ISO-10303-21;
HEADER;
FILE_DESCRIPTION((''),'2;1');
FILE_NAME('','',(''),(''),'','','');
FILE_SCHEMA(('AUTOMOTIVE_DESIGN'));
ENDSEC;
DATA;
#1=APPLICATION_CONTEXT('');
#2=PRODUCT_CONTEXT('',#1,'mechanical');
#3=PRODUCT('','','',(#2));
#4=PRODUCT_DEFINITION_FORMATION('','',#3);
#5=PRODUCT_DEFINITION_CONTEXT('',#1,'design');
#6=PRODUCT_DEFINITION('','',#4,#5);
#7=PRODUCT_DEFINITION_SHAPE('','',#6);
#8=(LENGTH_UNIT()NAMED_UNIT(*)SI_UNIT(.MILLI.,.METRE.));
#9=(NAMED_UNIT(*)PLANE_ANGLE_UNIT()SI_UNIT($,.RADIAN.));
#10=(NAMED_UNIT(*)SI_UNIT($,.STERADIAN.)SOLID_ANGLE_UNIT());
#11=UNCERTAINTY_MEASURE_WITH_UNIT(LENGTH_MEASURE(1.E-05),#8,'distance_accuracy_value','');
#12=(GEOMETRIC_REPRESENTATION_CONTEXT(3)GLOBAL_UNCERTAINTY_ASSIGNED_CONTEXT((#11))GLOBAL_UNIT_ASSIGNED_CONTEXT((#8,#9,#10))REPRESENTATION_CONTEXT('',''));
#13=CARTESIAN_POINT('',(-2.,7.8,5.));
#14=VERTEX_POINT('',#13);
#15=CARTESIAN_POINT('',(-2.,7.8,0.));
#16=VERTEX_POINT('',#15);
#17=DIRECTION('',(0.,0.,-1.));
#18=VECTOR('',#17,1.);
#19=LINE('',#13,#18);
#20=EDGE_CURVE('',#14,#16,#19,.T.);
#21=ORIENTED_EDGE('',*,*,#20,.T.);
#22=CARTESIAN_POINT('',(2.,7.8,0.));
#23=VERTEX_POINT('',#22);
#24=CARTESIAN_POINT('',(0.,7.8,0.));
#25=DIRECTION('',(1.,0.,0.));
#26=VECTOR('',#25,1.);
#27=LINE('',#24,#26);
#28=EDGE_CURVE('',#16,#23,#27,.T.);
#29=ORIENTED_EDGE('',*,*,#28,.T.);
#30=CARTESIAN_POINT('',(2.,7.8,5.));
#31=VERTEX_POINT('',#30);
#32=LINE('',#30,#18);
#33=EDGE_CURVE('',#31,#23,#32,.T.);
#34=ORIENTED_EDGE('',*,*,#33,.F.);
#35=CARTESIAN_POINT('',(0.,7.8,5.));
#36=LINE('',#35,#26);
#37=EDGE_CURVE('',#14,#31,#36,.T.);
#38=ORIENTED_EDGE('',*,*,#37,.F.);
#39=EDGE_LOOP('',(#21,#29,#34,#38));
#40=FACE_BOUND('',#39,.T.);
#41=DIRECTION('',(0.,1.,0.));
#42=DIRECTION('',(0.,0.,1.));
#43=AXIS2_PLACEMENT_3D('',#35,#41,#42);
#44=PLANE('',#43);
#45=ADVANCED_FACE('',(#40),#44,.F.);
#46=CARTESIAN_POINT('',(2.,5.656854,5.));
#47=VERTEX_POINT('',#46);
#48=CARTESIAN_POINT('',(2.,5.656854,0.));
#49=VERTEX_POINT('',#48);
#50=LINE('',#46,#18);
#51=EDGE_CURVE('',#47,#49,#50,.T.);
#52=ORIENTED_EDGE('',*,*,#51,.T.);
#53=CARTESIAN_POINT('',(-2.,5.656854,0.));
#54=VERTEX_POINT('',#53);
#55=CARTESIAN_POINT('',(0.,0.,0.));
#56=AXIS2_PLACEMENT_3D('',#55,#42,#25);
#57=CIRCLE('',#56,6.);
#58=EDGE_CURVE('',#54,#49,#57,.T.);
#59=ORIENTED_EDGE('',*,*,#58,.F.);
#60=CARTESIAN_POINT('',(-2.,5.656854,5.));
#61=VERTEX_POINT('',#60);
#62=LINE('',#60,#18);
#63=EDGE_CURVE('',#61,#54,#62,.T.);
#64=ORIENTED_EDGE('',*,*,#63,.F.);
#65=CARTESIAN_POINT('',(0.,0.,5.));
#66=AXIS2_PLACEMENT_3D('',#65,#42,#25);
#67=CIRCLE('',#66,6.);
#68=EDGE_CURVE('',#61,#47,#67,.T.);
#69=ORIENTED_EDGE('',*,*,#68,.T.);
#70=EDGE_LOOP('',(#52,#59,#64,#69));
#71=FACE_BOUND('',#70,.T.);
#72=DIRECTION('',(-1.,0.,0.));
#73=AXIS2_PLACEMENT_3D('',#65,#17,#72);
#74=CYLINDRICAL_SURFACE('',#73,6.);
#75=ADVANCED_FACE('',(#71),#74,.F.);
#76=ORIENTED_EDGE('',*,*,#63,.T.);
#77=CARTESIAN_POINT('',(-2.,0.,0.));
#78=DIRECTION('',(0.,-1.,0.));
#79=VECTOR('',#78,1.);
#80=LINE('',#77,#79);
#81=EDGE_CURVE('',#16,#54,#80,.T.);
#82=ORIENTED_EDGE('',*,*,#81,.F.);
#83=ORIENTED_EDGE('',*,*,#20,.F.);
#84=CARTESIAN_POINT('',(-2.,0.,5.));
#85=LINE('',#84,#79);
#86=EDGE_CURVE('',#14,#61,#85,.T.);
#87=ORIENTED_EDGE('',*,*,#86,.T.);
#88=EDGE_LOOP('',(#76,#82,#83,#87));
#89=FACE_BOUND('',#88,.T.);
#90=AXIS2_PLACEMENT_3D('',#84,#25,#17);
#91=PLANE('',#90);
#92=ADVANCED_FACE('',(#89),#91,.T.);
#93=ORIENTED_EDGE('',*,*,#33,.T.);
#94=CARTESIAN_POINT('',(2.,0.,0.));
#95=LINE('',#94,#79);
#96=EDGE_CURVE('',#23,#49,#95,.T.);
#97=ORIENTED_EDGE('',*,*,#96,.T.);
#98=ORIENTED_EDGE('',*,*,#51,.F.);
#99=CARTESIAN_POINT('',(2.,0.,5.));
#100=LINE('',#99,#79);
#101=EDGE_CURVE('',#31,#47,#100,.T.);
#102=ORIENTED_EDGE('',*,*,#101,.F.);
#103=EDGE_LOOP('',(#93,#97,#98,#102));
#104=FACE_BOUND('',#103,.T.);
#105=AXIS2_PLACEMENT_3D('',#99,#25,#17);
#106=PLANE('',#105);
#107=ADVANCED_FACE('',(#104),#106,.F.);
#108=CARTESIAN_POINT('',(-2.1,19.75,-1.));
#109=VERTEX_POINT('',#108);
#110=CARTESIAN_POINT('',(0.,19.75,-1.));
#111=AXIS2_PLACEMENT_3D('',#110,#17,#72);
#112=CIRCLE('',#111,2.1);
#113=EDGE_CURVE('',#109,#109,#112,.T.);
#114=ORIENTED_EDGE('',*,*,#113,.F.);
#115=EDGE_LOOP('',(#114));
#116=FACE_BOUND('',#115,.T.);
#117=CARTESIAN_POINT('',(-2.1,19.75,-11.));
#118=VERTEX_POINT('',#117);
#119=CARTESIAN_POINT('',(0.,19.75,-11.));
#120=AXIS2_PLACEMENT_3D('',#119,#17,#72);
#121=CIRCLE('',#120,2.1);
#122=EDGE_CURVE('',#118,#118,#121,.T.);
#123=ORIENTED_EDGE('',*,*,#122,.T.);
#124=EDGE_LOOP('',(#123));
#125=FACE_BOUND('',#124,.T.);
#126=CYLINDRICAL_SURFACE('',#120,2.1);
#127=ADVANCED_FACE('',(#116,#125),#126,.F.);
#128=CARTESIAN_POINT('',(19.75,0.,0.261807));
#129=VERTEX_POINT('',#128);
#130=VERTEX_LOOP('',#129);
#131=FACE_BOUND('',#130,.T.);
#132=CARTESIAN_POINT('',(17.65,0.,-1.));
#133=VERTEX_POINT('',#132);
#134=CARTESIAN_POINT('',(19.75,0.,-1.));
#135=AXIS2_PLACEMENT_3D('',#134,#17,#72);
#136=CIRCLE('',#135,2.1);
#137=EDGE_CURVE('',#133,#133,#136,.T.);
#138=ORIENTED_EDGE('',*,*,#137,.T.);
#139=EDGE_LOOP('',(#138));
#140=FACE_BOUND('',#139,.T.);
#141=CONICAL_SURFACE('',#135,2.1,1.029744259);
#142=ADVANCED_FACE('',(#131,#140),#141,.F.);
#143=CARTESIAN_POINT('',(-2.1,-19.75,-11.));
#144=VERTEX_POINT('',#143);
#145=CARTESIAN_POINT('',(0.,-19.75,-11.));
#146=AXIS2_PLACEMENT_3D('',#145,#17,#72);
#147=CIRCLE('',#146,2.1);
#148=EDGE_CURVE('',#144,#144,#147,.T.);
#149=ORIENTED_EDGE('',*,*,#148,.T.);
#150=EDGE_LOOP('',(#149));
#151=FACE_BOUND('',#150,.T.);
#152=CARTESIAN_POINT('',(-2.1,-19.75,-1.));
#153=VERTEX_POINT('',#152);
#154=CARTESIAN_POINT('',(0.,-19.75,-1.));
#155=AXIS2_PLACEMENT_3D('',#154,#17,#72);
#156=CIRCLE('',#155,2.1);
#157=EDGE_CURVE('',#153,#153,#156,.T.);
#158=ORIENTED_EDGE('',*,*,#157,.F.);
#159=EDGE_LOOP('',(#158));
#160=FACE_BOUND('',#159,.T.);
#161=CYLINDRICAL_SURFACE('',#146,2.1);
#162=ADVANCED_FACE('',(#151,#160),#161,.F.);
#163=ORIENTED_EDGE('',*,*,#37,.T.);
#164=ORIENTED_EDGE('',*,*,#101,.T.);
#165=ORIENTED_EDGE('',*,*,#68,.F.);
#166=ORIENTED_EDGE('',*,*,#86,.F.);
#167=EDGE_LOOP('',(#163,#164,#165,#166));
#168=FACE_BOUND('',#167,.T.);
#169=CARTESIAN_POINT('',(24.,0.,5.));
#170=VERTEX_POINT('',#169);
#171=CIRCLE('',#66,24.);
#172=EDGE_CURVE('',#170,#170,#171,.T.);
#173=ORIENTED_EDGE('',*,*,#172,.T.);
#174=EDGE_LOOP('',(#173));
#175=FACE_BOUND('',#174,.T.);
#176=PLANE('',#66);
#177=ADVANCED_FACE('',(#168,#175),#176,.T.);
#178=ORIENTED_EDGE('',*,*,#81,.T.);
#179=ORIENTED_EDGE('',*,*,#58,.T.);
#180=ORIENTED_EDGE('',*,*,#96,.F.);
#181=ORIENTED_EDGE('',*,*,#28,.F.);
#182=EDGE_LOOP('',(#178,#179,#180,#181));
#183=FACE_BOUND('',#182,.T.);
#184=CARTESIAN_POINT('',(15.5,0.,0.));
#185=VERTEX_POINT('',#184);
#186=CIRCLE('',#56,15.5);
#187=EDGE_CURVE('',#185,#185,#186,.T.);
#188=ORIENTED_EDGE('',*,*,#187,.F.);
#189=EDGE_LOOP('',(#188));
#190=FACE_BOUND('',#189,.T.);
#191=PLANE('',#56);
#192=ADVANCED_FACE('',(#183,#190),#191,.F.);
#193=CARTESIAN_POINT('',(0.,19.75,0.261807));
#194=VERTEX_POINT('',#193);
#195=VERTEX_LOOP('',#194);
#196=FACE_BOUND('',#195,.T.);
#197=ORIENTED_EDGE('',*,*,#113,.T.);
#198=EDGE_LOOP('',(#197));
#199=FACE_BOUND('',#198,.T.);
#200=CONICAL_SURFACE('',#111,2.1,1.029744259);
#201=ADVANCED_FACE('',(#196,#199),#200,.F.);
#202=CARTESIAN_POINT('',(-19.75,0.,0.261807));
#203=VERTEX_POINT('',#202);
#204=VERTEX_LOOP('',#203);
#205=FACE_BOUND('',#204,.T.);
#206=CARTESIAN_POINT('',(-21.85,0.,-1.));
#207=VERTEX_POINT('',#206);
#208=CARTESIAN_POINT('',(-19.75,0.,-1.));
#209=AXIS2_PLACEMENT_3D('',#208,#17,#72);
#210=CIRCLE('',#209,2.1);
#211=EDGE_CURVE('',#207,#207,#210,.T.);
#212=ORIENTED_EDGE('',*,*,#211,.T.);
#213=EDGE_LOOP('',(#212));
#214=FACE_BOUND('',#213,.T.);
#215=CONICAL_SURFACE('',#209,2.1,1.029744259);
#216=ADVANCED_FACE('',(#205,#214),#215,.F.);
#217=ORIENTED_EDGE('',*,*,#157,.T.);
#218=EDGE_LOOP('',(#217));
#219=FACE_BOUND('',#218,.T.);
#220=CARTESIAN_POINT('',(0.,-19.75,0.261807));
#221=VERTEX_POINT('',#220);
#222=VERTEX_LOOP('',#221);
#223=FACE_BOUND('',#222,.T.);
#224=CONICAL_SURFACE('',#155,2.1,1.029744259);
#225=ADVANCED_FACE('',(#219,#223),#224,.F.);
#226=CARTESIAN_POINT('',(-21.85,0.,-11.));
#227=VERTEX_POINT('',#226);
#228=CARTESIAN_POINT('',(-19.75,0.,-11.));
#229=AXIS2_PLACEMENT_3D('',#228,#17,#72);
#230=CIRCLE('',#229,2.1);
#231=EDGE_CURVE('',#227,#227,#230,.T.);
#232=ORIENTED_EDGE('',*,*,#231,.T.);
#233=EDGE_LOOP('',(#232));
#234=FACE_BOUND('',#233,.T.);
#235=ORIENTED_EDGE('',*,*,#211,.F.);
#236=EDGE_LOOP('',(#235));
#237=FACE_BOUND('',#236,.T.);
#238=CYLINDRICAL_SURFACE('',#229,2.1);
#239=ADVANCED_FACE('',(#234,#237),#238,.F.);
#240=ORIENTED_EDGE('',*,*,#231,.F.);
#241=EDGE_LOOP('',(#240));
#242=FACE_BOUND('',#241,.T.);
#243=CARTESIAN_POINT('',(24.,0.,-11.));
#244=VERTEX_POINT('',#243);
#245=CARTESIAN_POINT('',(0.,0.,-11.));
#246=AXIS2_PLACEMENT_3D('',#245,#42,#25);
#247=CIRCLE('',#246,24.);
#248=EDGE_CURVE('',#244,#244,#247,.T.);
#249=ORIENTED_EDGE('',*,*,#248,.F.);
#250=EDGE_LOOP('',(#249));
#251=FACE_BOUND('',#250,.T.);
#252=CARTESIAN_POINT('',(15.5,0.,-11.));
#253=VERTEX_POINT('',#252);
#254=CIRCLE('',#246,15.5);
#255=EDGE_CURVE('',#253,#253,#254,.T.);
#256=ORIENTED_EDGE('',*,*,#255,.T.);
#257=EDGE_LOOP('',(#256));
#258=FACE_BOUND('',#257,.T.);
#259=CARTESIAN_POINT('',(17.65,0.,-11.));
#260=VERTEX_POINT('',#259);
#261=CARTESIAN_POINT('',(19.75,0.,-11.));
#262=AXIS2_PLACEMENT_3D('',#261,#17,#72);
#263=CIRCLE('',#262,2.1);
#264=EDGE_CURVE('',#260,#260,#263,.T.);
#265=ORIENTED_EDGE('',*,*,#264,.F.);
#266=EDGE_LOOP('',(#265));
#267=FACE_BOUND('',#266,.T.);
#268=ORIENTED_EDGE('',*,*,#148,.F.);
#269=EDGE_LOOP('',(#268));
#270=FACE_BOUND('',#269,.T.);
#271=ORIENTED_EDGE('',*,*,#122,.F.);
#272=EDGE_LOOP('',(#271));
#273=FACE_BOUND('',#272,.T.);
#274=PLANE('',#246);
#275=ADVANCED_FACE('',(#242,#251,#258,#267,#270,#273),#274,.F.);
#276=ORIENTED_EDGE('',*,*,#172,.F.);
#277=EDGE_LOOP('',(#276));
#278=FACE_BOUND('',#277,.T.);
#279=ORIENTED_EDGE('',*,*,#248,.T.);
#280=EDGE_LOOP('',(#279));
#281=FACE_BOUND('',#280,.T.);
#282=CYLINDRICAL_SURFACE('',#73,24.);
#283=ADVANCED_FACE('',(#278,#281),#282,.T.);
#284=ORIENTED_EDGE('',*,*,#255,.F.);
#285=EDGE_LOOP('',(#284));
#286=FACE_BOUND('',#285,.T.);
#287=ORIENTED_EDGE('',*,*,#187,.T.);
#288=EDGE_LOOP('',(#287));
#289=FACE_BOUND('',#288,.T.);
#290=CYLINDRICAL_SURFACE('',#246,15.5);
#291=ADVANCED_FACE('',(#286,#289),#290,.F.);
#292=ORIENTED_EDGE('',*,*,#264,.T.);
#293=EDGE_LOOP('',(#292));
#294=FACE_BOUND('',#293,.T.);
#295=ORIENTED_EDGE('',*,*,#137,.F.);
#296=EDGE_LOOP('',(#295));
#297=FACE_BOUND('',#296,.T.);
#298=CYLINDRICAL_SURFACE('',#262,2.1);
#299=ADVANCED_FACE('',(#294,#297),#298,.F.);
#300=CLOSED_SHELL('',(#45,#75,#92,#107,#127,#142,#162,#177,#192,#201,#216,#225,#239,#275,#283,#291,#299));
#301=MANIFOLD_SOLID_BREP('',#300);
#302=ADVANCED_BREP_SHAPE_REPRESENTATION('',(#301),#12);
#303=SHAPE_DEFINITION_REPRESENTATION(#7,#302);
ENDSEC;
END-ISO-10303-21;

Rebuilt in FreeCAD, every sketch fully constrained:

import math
import FreeCAD as App
import Part
import Sketcher

V = App.Vector
Q = App.Units.Quantity

doc = App.newDocument("Part")
body = doc.addObject("PartDesign::Body", "Body")

# Sketch on XY plane
sketch1 = body.newObject("Sketcher::SketchObject", "Sketch")
sketch1.AttachmentSupport = (doc.getObject("XY_Plane"), [""])
sketch1.MapMode = "FlatFace"
sketch1.addGeometry(Part.Circle(V(0, 0, 0), V(0, 0, 1), 24), False)
sketch1.addGeometry(Part.ArcOfCircle(Part.Circle(V(0, 0, 0), V(0, 0, 1), 6), math.radians(109.471221), math.radians(430.528779)), False)
sketch1.addGeometry(Part.LineSegment(V(-2, 5.656854, 0), V(-2, 7.8, 0)), False)
sketch1.addGeometry(Part.LineSegment(V(-2, 7.8, 0), V(2, 7.8, 0)), False)
sketch1.addGeometry(Part.LineSegment(V(2, 7.8, 0), V(2, 5.656854, 0)), False)
sketch1.addConstraint(Sketcher.Constraint("Coincident", 1, 1, 2, 1))
sketch1.addConstraint(Sketcher.Constraint("Coincident", 2, 2, 3, 1))
sketch1.addConstraint(Sketcher.Constraint("Coincident", 3, 2, 4, 1))
sketch1.addConstraint(Sketcher.Constraint("Coincident", 4, 2, 1, 2))
sketch1.addConstraint(Sketcher.Constraint("Vertical", 2))
sketch1.addConstraint(Sketcher.Constraint("Horizontal", 3))
sketch1.addConstraint(Sketcher.Constraint("Vertical", 4))
sketch1.addConstraint(Sketcher.Constraint("Coincident", 0, 3, -1, 1))
sketch1.addConstraint(Sketcher.Constraint("Coincident", 1, 3, -1, 1))
sketch1.addConstraint(Sketcher.Constraint("Horizontal", 1, 1, 4, 2))
sketch1.addConstraint(Sketcher.Constraint("Diameter", 0, Q("48 mm")))
sketch1.addConstraint(Sketcher.Constraint("Radius", 1, Q("6 mm")))
sketch1.addConstraint(Sketcher.Constraint("DistanceX", 3, 1, 3, 2, Q("4 mm")))
sketch1.addConstraint(Sketcher.Constraint("DistanceY", -1, 1, 2, 2, Q("7.8 mm")))
pad1 = body.newObject("PartDesign::Pad", "Pad")
pad1.Profile = sketch1
pad1.Length = 5

# Sketch on XY plane
sketch2 = body.newObject("Sketcher::SketchObject", "Sketch001")
sketch2.AttachmentSupport = (doc.getObject("XY_Plane"), [""])
sketch2.MapMode = "FlatFace"
sketch2.AttachmentOffset = App.Placement(V(0, 0, -11), App.Rotation())
sketch2.addGeometry(Part.Circle(V(0, 0, 0), V(0, 0, 1), 24), False)
sketch2.addGeometry(Part.Circle(V(0, 0, 0), V(0, 0, 1), 15.5), False)
sketch2.addConstraint(Sketcher.Constraint("Coincident", 0, 3, -1, 1))
sketch2.addConstraint(Sketcher.Constraint("Coincident", 1, 3, -1, 1))
sketch2.addConstraint(Sketcher.Constraint("Diameter", 0, Q("48 mm")))
sketch2.addConstraint(Sketcher.Constraint("Diameter", 1, Q("31 mm")))
pad2 = body.newObject("PartDesign::Pad", "Pad001")
pad2.Profile = sketch2
pad2.Length = 11

# Sketch on XY plane
sketch3 = body.newObject("Sketcher::SketchObject", "Sketch002")
sketch3.AttachmentSupport = (doc.getObject("XY_Plane"), [""])
sketch3.MapMode = "FlatFace"
sketch3.AttachmentOffset = App.Placement(V(0, 0, -11), App.Rotation())
sketch3.addGeometry(Part.Circle(V(19.75, 0, 0), V(0, 0, 1), 2.1), False)
sketch3.addGeometry(Part.Circle(V(0, -19.75, 0), V(0, 0, 1), 2.1), False)
sketch3.addGeometry(Part.Circle(V(-19.75, 0, 0), V(0, 0, 1), 2.1), False)
sketch3.addGeometry(Part.Circle(V(0, 19.75, 0), V(0, 0, 1), 2.1), False)
sketch3.addConstraint(Sketcher.Constraint("Equal", 0, 1))
sketch3.addConstraint(Sketcher.Constraint("Equal", 1, 2))
sketch3.addConstraint(Sketcher.Constraint("Equal", 2, 3))
sketch3.addConstraint(Sketcher.Constraint("Symmetric", 0, 3, 2, 3, -1, 1))
sketch3.addConstraint(Sketcher.Constraint("Symmetric", 1, 3, 3, 3, -1, 1))
sketch3.addConstraint(Sketcher.Constraint("PointOnObject", 0, 3, -1))
sketch3.addConstraint(Sketcher.Constraint("PointOnObject", 1, 3, -2))
sketch3.addConstraint(Sketcher.Constraint("Diameter", 0, Q("4.2 mm")))
sketch3.addConstraint(Sketcher.Constraint("DistanceX", 2, 3, 0, 3, Q("39.5 mm")))
sketch3.addConstraint(Sketcher.Constraint("DistanceY", 1, 3, 3, 3, Q("39.5 mm")))
doc.recompute()
hole = body.newObject("PartDesign::Hole", "Hole")
hole.Profile = sketch3
hole.ThreadType = "None"
hole.Diameter = 4.2
hole.DepthType = "Dimension"
hole.Depth = 10
hole.DrillPoint = "Angled"
hole.DrillPointAngle = 118
hole.Reversed = True

doc.recompute()
